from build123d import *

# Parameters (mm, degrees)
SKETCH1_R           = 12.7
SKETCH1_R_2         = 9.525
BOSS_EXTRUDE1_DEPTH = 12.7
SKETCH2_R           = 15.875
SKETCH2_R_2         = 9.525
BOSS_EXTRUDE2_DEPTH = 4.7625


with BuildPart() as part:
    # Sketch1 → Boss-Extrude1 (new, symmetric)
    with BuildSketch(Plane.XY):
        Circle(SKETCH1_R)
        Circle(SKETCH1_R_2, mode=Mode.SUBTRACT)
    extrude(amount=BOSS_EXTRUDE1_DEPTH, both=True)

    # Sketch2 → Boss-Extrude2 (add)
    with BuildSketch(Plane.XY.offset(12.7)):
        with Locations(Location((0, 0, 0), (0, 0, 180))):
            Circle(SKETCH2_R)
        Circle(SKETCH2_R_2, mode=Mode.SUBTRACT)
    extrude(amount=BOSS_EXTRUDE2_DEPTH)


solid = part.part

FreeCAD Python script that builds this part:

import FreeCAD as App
import Part
import Sketcher
Q = App.Units.Quantity

doc = App.newDocument("Part")
params = doc.addObject("Spreadsheet::Sheet", "Params")
for row, (alias, value) in enumerate([
    ("sketch1_diameter", "1 in"),
    ("sketch1_diameter2", "0.75 in"),
    ("pad1_length", "1 in"),
    ("sketch2_diameter", "1.25 in"),
    ("sketch2_diameter2", "0.75 in"),
    ("pad2_length", "0.1875 in"),
], start=1):
    params.set(f"A{row}", alias)
    params.set(f"B{row}", "=" + value)
    params.setAlias(f"B{row}", alias)

body = doc.addObject("PartDesign::Body", "Body")

# Sketch on XY plane
sketch1 = body.newObject("Sketcher::SketchObject", "Sketch")
sketch1.AttachmentSupport = (doc.getObject("XY_Plane"), [""])
sketch1.MapMode = "FlatFace"
sketch1.addGeometry(Part.Circle(App.Vector(0, 0, 0), App.Vector(0, 0, 1), 13), False)
sketch1.addGeometry(Part.Circle(App.Vector(0, 0, 0), App.Vector(0, 0, 1), 10), False)
sketch1.addConstraint(Sketcher.Constraint("Coincident", 0, 3, -1, 1))
sketch1.addConstraint(Sketcher.Constraint("Coincident", 1, 3, -1, 1))
sketch1.addConstraint(Sketcher.Constraint("Diameter", 0, Q("1 in")))
sketch1.addConstraint(Sketcher.Constraint("Diameter", 1, Q("0.75 in")))
sketch1.setExpression("Constraints[2]", "Params.sketch1_diameter")
sketch1.setExpression("Constraints[3]", "Params.sketch1_diameter2")
pad1 = body.newObject("PartDesign::Pad", "Pad")
pad1.Profile = sketch1
pad1.setExpression("Length", "Params.pad1_length")
pad1.Midplane = True

# Sketch on XY plane
sketch2 = body.newObject("Sketcher::SketchObject", "Sketch001")
sketch2.AttachmentSupport = (doc.getObject("XY_Plane"), [""])
sketch2.MapMode = "FlatFace"
sketch2.AttachmentOffset = App.Placement(App.Vector(0, 0, 0.5 * 25.4), App.Rotation())
sketch2.addGeometry(Part.Circle(App.Vector(0, 0, 0), App.Vector(0, 0, 1), 16), False)
sketch2.addGeometry(Part.Circle(App.Vector(0, 0, 0), App.Vector(0, 0, 1), 10), False)
sketch2.addConstraint(Sketcher.Constraint("Coincident", 0, 3, -1, 1))
sketch2.addConstraint(Sketcher.Constraint("Coincident", 1, 3, -1, 1))
sketch2.addConstraint(Sketcher.Constraint("Diameter", 0, Q("1.25 in")))
sketch2.addConstraint(Sketcher.Constraint("Diameter", 1, Q("0.75 in")))
sketch2.setExpression("Constraints[2]", "Params.sketch2_diameter")
sketch2.setExpression("Constraints[3]", "Params.sketch2_diameter2")
pad2 = body.newObject("PartDesign::Pad", "Pad001")
pad2.Profile = sketch2
pad2.setExpression("Length", "Params.pad2_length")

doc.recompute()
